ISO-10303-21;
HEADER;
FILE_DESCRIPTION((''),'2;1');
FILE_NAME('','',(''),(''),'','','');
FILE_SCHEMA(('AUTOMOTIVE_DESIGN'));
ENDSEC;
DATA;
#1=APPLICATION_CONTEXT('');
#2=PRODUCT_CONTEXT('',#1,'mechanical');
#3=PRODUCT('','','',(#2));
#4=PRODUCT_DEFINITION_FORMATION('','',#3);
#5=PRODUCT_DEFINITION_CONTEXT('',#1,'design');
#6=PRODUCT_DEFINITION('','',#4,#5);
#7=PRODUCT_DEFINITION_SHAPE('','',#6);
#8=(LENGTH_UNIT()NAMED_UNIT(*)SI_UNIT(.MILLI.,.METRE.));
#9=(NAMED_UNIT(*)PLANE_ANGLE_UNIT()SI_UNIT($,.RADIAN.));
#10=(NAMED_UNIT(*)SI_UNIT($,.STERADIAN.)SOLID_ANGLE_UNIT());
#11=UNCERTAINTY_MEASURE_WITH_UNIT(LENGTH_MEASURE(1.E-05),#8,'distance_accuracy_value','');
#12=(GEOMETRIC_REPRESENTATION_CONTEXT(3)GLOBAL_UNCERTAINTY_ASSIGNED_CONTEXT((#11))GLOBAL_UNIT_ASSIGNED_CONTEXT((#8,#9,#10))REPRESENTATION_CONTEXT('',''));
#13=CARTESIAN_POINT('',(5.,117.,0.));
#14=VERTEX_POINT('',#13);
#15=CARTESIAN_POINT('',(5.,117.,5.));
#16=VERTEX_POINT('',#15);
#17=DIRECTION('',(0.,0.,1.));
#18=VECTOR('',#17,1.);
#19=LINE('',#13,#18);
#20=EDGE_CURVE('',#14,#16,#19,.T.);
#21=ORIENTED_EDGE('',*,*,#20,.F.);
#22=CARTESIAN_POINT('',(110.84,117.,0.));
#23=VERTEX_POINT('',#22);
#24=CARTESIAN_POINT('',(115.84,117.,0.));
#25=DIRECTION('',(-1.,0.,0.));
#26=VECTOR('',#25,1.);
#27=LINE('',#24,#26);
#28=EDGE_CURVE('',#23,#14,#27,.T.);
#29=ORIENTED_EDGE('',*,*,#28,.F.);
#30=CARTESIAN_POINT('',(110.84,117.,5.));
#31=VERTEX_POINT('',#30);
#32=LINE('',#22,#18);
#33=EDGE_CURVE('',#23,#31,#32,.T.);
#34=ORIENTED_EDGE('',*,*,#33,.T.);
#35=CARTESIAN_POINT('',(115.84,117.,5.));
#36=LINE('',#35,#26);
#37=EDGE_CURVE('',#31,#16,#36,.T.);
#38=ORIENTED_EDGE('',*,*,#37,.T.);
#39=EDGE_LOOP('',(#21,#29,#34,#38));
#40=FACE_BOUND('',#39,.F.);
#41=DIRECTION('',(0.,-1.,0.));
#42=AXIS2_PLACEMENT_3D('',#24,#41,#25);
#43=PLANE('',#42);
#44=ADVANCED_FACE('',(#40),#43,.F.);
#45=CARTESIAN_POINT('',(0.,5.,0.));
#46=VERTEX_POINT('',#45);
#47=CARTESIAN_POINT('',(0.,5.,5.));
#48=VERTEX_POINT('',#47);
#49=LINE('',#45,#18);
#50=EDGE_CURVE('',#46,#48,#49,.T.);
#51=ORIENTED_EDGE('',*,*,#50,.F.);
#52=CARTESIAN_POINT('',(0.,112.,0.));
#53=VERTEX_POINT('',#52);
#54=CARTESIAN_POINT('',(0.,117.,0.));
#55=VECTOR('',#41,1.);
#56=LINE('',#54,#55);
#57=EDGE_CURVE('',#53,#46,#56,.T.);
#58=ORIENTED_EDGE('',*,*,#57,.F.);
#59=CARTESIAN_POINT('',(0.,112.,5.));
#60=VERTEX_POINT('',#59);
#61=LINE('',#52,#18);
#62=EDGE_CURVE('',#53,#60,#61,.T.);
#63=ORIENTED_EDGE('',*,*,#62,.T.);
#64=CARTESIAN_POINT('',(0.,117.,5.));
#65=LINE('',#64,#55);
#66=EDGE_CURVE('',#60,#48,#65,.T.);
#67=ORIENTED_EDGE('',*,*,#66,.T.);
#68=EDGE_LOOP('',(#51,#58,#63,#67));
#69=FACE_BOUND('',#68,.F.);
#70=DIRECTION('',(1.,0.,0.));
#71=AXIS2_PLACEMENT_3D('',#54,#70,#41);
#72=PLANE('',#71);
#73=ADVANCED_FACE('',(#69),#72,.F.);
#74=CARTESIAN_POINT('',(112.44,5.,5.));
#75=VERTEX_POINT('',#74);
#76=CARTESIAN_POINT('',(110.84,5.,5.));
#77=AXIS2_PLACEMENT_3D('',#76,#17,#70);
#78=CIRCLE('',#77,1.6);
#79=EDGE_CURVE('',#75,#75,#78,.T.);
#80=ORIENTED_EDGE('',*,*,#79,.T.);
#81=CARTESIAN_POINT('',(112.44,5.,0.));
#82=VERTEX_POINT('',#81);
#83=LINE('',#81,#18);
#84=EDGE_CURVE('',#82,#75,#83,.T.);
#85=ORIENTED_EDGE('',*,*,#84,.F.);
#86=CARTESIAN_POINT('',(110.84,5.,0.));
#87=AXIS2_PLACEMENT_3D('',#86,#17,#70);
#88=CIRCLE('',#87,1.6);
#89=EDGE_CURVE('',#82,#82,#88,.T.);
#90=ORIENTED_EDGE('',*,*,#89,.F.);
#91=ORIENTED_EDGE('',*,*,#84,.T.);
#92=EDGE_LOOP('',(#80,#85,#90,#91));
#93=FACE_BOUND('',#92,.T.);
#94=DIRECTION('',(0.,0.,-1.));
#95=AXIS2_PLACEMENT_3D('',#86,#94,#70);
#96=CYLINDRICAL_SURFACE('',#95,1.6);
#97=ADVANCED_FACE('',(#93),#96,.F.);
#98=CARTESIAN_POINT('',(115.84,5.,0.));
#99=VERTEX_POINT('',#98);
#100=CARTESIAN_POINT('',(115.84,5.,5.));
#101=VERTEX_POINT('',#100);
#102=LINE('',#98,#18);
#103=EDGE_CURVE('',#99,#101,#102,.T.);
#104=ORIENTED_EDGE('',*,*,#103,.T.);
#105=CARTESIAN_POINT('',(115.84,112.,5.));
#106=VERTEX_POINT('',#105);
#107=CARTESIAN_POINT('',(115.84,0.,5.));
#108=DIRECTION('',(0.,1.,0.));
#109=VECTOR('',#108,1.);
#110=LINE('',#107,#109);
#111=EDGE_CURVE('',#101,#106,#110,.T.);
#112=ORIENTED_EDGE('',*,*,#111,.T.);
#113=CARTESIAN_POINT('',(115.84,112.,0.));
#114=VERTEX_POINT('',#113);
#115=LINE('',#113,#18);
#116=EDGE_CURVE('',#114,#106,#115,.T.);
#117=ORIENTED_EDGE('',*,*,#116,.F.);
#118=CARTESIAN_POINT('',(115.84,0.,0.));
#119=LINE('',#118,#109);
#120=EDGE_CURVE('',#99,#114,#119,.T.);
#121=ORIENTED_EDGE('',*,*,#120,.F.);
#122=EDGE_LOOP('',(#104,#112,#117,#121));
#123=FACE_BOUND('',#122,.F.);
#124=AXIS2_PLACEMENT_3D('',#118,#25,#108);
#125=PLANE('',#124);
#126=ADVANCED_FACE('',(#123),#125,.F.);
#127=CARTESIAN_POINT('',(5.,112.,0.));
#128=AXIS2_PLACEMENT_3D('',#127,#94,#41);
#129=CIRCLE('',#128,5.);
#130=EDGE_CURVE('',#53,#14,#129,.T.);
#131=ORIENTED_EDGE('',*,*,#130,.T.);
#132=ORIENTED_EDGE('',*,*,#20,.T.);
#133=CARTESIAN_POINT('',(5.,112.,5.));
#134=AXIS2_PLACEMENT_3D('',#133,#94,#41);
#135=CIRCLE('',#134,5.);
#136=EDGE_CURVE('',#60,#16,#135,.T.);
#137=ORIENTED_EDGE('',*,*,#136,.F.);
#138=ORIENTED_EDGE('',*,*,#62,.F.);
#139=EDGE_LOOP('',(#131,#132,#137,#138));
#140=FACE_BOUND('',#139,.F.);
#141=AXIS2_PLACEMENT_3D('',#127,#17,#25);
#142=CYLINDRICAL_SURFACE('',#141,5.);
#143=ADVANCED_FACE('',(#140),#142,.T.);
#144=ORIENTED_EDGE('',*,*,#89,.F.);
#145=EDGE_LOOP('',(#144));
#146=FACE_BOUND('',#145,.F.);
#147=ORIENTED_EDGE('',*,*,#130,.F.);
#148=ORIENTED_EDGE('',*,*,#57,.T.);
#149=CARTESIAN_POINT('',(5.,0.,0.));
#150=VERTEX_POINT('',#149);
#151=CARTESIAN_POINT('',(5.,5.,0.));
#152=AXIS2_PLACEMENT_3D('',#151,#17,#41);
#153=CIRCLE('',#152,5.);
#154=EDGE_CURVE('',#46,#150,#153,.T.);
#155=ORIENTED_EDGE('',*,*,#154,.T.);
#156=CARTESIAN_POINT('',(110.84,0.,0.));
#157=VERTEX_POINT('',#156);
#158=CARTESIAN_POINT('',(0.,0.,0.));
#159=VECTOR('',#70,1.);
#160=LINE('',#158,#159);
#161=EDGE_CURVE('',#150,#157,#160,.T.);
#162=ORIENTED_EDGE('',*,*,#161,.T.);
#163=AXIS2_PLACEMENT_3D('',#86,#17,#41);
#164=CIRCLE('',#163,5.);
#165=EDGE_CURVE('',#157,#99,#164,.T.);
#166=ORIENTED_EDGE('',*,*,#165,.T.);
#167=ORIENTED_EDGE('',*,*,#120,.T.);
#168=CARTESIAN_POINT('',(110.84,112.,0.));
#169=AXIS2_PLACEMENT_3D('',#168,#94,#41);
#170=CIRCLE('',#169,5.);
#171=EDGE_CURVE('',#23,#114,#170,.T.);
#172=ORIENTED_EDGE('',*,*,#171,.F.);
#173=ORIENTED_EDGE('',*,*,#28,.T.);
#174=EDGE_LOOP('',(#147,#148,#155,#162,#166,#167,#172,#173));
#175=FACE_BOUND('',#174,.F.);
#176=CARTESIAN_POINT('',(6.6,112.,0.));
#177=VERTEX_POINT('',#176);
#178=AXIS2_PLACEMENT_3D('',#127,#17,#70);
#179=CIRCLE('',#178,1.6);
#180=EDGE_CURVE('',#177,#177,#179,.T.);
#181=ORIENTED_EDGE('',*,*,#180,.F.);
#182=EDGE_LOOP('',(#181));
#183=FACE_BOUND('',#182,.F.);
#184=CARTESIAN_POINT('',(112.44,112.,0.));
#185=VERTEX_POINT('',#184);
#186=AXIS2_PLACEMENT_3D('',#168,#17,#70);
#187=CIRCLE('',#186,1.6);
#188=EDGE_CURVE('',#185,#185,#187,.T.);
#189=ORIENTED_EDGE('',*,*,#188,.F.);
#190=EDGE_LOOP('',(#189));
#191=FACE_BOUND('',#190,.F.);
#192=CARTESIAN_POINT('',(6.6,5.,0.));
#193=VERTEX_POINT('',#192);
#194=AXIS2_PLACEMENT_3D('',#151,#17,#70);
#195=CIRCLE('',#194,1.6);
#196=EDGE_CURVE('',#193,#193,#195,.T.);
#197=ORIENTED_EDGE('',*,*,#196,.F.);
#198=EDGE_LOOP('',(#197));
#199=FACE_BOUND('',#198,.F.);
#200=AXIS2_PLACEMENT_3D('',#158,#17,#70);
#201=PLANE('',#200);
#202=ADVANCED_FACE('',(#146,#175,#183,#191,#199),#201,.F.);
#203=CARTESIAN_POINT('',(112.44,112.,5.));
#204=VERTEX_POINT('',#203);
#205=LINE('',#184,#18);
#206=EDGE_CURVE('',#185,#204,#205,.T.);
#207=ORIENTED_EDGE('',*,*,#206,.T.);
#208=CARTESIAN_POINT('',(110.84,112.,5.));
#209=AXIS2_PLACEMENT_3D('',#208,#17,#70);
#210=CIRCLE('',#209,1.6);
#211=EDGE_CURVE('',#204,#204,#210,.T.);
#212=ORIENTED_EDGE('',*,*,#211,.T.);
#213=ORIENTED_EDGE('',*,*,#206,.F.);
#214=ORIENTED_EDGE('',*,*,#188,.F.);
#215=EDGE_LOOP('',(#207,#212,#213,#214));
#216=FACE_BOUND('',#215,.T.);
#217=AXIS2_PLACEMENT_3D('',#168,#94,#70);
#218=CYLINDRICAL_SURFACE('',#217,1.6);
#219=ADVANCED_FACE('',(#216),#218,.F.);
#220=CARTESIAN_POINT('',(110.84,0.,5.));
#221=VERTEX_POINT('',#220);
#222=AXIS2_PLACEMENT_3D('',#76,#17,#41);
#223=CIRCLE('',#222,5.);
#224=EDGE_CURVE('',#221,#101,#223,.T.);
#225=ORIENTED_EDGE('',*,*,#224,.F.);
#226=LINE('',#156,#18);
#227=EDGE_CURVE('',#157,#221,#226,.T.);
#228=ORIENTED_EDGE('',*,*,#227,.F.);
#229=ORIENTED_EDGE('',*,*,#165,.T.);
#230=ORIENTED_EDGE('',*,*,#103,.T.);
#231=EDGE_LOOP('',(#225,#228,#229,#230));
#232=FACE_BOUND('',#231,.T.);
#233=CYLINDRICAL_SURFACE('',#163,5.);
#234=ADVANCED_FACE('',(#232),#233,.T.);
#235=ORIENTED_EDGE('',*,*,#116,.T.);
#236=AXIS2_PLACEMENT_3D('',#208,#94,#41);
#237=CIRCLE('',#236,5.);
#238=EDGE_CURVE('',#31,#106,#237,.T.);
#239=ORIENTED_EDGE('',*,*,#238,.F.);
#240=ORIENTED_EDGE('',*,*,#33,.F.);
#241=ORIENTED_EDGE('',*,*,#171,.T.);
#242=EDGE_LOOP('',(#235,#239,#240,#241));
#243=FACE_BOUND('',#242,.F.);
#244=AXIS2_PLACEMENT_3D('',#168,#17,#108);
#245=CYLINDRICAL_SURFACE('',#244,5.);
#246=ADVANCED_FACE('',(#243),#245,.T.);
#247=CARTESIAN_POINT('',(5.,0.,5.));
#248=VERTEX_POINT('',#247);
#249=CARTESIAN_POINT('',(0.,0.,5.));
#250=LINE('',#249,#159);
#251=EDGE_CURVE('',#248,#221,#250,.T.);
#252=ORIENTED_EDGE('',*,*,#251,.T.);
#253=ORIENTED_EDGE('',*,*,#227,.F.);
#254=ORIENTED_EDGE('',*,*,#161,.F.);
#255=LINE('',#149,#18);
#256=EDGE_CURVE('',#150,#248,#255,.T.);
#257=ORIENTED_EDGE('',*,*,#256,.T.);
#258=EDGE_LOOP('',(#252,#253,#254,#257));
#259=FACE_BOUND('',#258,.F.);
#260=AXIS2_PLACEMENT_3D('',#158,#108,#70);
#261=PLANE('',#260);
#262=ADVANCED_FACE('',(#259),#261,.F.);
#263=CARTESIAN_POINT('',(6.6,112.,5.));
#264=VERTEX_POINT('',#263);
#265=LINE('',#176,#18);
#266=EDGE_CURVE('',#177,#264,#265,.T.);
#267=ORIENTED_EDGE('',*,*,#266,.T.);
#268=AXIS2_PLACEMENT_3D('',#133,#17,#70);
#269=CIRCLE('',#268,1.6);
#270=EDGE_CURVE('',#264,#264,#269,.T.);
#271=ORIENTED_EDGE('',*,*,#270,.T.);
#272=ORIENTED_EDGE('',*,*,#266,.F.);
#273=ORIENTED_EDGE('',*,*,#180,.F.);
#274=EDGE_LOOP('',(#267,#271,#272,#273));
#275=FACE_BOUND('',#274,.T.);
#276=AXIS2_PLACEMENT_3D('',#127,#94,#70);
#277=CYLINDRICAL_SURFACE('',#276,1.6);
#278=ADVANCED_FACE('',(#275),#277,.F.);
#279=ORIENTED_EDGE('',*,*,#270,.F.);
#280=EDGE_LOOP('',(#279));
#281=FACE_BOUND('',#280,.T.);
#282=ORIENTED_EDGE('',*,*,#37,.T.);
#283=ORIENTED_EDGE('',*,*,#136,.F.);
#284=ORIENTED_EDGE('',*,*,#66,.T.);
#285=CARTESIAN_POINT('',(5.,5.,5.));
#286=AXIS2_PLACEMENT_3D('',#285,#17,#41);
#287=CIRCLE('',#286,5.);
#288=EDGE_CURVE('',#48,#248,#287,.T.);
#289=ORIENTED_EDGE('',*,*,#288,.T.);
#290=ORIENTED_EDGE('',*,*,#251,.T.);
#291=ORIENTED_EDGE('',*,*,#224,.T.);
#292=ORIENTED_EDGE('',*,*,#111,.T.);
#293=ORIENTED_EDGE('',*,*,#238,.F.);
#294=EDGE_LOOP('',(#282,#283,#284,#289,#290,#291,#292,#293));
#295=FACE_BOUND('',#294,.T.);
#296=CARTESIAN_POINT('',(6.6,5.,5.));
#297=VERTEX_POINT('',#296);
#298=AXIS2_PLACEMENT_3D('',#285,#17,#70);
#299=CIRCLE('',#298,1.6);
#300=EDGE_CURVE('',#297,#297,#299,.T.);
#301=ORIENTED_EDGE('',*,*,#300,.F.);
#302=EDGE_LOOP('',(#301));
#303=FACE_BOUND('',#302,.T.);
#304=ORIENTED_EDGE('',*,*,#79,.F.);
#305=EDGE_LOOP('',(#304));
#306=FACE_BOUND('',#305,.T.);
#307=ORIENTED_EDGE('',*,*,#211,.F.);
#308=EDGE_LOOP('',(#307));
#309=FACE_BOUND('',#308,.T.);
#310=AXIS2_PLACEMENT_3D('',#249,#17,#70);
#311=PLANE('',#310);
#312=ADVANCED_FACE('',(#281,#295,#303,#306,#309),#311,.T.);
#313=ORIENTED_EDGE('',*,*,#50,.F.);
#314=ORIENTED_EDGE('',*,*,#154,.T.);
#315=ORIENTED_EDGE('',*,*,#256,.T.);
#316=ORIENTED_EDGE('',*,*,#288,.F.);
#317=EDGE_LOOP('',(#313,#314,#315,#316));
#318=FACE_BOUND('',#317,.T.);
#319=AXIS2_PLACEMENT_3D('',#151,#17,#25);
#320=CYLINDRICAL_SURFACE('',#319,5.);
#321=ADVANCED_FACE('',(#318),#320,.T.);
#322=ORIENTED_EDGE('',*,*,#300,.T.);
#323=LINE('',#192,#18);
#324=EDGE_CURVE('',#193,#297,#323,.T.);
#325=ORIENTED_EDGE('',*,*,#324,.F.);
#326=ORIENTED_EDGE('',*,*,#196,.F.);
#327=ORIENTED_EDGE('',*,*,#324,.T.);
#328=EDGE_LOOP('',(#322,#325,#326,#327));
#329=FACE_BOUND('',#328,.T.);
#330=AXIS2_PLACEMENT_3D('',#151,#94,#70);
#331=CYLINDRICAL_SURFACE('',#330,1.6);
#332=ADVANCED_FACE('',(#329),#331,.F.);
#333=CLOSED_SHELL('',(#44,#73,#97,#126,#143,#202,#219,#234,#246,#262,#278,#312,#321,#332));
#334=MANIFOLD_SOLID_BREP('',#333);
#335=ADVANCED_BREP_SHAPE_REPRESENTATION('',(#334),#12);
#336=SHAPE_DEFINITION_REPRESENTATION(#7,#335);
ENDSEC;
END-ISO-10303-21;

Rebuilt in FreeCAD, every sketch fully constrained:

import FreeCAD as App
import Part
import Sketcher
Q = App.Units.Quantity


def edges_at(feature, points):
    """Names of the edges that pass closest to the given points."""
    edges = feature.Shape.Edges
    near = lambda p: min(range(len(edges)), key=lambda i: edges[i].distToShape(Part.Vertex(*p))[0])
    return sorted({f"Edge{near(p) + 1}" for p in points})


def add_polygon(sketch, points):
    """Adds a closed chain of lines whose ends are joined by coincident constraints."""
    first, n = sketch.GeometryCount, len(points)
    for a, b in zip(points, points[1:] + points[:1]):
        sketch.addGeometry(Part.LineSegment(App.Vector(*a, 0), App.Vector(*b, 0)), False)
    for i in range(n):
        sketch.addConstraint(Sketcher.Constraint("Coincident", first + i, 2, first + (i + 1) % n, 1))

doc = App.newDocument("Part")
body = doc.addObject("PartDesign::Body", "Body")

# Sketch on XY plane
sketch1 = body.newObject("Sketcher::SketchObject", "Sketch")
sketch1.AttachmentSupport = (doc.getObject("XY_Plane"), [""])
sketch1.MapMode = "FlatFace"
add_polygon(sketch1, [(0, 117), (0, 0), (115.84, 0), (115.84, 117)])  # lines 0-3
sketch1.addGeometry(Part.Circle(App.Vector(5, 5, 0), App.Vector(0, 0, 1), 1.6), False)  # 4
sketch1.addGeometry(Part.Circle(App.Vector(110.84, 5, 0), App.Vector(0, 0, 1), 1.6), False)  # 5
sketch1.addGeometry(Part.Circle(App.Vector(5, 112, 0), App.Vector(0, 0, 1), 1.6), False)  # 6
sketch1.addGeometry(Part.Circle(App.Vector(110.84, 112, 0), App.Vector(0, 0, 1), 1.6), False)  # 7
sketch1.addConstraint([
    Sketcher.Constraint("Vertical", 0),
    Sketcher.Constraint("Horizontal", 1),
    Sketcher.Constraint("Vertical", 2),
    Sketcher.Constraint("Horizontal", 3),
    Sketcher.Constraint("Coincident", 0, 2, -1, 1),
    Sketcher.Constraint("Equal", 4, 5),
    Sketcher.Constraint("Equal", 5, 6),
    Sketcher.Constraint("Equal", 6, 7),
    Sketcher.Constraint("Horizontal", 4, 3, 5, 3),
    Sketcher.Constraint("Horizontal", 6, 3, 7, 3),
    Sketcher.Constraint("Vertical", 4, 3, 6, 3),
    Sketcher.Constraint("Vertical", 5, 3, 7, 3),
    Sketcher.Constraint("Diameter", 4, Q("3.2 mm")),
    Sketcher.Constraint("DistanceY", 0, 2, 0, 1, Q("117 mm")),
    Sketcher.Constraint("DistanceX", -1, 1, 4, 3, Q("5 mm")),
    Sketcher.Constraint("DistanceY", -1, 1, 4, 3, Q("5 mm")),
    Sketcher.Constraint("DistanceX", 5, 3, 1, 2, Q("5 mm")),
    Sketcher.Constraint("DistanceY", 7, 3, 2, 2, Q("5 mm")),
    Sketcher.Constraint("DistanceX", 1, 1, 1, 2, Q("115.84 mm")),
])
pad1 = body.newObject("PartDesign::Pad", "Pad")
pad1.Profile = sketch1
pad1.Length = 5
doc.recompute()

fillet = body.newObject("PartDesign::Fillet", "Fillet")
fillet.Base = (pad1, edges_at(pad1, [
    (115.84, 117, 2.5),
    (115.84, 0, 2.5),
    (0, 117, 2.5),
    (0, 0, 2.5),
]))
fillet.Radius = 5

doc.recompute()
